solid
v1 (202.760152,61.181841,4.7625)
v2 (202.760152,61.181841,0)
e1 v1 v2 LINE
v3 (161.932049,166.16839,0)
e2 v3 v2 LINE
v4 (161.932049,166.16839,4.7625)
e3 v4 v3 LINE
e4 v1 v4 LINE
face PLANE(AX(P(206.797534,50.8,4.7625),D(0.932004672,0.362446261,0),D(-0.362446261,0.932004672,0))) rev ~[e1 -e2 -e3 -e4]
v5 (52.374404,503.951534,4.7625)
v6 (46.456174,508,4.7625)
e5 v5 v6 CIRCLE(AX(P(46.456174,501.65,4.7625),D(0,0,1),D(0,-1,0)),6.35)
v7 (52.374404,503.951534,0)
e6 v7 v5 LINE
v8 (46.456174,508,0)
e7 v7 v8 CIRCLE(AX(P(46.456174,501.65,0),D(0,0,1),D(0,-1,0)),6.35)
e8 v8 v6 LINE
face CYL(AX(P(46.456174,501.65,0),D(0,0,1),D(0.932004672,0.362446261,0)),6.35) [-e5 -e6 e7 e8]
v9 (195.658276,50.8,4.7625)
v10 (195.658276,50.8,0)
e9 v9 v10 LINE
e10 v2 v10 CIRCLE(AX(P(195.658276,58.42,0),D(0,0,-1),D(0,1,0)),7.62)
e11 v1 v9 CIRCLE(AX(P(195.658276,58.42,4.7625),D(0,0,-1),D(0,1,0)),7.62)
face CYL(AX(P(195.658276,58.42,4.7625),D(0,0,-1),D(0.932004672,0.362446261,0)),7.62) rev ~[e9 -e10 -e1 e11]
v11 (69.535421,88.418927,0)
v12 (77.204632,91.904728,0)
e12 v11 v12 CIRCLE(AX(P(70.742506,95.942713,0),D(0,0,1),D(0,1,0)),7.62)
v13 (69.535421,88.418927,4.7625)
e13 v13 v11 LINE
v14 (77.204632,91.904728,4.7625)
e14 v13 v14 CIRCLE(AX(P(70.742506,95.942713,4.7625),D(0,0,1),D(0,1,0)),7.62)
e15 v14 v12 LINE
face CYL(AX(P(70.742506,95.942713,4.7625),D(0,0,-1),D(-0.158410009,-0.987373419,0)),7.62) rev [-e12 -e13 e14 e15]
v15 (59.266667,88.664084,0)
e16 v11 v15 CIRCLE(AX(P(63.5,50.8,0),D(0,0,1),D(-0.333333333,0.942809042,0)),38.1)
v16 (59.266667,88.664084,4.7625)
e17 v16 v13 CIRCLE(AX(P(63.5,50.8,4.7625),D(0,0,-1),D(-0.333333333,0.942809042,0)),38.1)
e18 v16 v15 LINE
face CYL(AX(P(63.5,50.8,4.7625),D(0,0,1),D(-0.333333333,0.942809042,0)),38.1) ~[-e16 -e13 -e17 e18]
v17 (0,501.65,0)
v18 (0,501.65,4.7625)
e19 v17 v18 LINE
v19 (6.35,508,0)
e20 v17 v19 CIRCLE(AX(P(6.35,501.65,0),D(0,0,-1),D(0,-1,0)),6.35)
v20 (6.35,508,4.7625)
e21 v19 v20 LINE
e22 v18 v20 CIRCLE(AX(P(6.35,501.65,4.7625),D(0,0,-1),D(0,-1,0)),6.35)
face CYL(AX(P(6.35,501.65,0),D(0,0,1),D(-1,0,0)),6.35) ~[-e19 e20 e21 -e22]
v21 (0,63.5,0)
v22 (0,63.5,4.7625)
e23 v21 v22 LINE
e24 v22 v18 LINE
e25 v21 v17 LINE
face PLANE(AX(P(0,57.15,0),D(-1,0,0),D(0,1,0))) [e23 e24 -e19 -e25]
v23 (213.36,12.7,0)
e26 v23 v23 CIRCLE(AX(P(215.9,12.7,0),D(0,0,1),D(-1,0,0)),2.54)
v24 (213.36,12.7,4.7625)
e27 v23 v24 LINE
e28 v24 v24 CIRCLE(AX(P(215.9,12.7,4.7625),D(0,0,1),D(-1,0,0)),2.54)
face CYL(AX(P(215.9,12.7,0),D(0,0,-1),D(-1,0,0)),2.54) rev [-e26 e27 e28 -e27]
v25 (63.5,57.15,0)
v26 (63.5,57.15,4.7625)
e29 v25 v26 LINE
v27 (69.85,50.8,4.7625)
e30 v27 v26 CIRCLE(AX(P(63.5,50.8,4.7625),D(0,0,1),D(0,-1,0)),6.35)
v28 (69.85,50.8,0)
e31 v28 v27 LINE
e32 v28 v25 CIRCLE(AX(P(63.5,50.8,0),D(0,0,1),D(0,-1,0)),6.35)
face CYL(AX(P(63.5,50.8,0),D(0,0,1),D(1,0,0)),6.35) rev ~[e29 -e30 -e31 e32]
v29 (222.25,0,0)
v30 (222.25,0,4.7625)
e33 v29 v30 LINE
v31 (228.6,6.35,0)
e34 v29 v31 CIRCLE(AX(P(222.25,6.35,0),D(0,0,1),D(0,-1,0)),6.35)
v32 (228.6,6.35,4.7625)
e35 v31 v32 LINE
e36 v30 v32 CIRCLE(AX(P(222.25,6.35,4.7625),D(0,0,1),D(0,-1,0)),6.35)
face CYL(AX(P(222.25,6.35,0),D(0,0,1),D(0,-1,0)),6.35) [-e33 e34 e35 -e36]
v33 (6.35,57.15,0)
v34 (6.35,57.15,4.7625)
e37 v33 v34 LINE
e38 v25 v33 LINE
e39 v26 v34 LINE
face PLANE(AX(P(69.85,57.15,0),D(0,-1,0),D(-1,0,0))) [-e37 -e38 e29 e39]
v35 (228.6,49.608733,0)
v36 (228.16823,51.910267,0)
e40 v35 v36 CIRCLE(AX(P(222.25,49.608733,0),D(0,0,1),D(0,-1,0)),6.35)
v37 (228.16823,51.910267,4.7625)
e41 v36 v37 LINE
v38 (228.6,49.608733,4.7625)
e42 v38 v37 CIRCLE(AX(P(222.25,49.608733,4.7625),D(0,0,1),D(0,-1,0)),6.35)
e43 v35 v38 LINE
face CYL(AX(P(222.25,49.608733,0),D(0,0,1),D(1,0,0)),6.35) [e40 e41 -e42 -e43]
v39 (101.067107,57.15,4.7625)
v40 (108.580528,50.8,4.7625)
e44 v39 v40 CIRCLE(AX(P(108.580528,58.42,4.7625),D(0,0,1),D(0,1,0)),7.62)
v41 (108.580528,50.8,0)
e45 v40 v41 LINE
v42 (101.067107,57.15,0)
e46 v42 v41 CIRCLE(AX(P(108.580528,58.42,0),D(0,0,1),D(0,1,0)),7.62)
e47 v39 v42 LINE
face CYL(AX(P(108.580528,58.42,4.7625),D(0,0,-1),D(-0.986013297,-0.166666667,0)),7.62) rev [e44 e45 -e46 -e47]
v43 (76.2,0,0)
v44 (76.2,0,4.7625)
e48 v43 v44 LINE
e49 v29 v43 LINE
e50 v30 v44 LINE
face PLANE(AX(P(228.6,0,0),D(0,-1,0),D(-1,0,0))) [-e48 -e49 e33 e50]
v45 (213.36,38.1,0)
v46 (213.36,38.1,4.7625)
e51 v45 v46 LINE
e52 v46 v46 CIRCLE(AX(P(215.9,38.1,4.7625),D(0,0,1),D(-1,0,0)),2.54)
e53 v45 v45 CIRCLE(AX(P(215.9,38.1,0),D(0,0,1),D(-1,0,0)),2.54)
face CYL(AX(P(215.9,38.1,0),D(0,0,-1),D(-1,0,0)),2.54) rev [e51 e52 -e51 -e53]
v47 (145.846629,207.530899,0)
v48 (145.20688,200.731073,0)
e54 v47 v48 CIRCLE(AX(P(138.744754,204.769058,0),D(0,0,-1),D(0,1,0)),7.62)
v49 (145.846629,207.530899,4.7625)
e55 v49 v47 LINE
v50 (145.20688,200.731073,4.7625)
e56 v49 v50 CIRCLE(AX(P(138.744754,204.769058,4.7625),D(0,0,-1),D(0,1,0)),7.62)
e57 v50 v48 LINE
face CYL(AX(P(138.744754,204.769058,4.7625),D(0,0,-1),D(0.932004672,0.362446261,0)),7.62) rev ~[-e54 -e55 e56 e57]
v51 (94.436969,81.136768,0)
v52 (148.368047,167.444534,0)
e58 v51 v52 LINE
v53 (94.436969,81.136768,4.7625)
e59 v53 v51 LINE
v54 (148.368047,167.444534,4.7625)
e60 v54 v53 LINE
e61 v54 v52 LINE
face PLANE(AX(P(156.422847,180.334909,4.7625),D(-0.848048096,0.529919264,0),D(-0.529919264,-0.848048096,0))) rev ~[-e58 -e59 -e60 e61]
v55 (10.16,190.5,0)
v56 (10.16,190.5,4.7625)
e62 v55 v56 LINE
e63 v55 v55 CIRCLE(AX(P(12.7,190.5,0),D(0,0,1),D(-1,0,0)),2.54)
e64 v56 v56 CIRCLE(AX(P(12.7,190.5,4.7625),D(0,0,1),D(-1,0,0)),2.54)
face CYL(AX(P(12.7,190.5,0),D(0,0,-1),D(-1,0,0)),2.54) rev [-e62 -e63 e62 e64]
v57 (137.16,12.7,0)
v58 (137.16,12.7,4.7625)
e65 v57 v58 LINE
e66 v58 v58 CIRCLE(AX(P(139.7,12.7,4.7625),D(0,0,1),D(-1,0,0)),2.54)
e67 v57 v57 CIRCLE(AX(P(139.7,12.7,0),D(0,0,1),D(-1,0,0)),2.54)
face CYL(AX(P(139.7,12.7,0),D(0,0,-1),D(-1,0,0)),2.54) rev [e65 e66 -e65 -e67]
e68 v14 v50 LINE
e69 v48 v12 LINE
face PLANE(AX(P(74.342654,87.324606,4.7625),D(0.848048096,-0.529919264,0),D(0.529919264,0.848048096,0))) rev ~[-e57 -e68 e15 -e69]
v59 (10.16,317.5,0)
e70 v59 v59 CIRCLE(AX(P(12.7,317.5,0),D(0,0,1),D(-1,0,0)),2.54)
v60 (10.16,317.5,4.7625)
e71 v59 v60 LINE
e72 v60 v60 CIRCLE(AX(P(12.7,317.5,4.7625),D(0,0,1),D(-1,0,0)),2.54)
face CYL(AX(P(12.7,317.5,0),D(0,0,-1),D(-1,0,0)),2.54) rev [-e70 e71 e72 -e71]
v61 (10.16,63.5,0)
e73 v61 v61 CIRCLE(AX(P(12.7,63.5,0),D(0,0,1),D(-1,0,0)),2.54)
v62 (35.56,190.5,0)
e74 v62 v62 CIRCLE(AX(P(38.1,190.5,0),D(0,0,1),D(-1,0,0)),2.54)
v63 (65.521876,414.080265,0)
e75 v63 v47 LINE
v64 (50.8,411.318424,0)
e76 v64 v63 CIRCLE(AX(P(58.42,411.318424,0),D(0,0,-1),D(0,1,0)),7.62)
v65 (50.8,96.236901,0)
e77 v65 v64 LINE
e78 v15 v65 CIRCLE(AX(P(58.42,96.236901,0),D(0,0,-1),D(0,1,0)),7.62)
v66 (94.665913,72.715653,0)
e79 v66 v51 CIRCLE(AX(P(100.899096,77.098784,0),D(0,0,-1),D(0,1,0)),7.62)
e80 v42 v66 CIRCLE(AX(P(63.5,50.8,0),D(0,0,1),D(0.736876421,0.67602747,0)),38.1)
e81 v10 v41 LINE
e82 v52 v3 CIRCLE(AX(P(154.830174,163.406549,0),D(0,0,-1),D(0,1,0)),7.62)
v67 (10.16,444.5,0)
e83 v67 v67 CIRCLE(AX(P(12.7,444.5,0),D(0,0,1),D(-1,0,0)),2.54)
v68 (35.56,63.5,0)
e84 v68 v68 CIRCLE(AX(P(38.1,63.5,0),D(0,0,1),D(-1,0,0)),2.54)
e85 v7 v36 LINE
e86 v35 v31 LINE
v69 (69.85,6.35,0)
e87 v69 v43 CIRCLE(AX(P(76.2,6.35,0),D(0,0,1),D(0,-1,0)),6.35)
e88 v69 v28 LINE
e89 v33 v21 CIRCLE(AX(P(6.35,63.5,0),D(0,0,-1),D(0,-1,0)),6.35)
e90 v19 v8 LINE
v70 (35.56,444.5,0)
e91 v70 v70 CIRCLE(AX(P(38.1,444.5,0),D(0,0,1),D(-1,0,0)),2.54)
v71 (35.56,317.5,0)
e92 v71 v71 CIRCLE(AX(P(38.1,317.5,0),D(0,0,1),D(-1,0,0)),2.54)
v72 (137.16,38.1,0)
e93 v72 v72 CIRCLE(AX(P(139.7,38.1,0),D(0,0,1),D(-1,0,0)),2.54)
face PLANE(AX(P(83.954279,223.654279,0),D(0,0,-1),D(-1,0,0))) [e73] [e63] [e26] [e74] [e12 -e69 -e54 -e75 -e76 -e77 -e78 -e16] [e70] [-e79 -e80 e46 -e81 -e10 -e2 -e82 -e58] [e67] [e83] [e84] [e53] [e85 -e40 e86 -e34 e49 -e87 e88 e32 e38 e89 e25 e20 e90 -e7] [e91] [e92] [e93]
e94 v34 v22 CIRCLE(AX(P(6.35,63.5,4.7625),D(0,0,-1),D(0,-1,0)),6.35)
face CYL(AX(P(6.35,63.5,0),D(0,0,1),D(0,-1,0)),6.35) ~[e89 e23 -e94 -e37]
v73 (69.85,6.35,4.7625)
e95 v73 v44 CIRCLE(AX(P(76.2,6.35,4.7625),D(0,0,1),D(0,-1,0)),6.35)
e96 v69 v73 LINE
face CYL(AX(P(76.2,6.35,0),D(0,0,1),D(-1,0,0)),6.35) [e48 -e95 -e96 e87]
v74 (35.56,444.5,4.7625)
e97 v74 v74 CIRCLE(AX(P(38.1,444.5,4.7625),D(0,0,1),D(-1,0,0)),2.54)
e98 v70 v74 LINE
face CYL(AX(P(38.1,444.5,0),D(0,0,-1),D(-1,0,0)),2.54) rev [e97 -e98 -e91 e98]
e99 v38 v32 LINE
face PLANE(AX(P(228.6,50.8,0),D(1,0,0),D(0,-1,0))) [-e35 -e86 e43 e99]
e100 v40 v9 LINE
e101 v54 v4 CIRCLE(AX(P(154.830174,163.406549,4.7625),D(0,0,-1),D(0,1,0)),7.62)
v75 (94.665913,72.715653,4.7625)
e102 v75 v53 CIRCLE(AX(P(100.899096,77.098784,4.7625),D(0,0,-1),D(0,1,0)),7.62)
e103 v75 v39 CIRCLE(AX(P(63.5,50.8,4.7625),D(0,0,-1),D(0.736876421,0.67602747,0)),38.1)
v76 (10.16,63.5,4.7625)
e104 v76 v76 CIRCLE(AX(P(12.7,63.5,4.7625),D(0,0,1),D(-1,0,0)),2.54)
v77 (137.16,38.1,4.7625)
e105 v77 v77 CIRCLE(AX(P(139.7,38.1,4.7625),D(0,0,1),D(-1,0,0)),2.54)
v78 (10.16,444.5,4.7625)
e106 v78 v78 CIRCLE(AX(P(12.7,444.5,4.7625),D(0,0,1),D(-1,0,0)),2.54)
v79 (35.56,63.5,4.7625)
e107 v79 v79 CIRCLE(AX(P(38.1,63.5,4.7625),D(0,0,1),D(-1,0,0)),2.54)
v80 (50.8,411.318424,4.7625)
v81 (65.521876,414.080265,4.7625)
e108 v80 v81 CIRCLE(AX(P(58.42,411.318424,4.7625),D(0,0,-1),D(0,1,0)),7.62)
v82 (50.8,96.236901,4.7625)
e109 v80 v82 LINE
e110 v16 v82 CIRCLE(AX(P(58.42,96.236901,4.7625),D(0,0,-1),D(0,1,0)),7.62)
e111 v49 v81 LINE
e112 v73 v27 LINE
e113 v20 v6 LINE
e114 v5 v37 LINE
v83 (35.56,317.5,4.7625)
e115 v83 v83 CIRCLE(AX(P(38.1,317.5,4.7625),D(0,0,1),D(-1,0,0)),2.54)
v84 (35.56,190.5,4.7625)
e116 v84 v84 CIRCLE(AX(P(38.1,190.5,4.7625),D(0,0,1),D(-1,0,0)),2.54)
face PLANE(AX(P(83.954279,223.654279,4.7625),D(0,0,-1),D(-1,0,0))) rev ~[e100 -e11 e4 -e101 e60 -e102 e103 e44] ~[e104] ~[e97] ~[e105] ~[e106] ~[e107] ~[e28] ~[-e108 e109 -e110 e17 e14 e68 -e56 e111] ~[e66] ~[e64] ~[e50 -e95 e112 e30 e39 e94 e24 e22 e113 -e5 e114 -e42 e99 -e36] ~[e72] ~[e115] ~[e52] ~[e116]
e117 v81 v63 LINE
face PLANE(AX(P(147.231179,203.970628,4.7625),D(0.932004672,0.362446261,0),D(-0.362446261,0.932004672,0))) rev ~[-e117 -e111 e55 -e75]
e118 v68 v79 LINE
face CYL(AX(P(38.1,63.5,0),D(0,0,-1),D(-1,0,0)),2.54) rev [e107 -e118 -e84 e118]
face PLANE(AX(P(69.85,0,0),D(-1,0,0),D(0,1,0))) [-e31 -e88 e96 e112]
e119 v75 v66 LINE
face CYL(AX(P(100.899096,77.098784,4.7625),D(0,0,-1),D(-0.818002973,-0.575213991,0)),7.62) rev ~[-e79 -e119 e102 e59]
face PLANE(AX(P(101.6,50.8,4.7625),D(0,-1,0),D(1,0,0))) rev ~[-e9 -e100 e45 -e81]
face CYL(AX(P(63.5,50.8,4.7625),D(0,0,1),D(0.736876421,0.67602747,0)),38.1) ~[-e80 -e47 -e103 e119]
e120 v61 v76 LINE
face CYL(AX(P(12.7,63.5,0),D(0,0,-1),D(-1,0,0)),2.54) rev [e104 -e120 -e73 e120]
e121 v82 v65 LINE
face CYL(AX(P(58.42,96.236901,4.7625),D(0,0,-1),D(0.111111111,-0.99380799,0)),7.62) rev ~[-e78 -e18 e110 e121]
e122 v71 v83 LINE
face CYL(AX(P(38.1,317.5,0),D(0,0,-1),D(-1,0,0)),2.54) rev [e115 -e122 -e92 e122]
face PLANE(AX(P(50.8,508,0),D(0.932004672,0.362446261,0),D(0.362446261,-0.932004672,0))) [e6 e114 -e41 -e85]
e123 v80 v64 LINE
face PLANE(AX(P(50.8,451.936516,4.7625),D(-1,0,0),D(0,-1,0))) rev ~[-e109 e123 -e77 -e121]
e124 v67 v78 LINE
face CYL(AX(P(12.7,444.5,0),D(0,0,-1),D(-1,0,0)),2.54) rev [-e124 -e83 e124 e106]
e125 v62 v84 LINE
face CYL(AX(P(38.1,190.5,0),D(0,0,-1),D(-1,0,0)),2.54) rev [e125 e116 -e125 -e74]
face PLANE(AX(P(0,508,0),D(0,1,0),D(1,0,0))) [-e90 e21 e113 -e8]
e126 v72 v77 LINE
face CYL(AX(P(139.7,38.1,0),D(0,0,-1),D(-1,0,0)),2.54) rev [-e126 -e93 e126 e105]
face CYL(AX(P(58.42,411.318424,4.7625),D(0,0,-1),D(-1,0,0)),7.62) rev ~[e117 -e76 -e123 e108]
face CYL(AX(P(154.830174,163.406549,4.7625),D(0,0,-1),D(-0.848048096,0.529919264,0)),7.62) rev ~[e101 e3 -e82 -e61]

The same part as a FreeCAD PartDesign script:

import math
import FreeCAD as App
import Part
import Sketcher

V = App.Vector
Q = App.Units.Quantity


def edges_at(feature, points):
    """Names of the edges that pass closest to the given points."""
    edges = feature.Shape.Edges
    near = lambda p: min(range(len(edges)), key=lambda i: edges[i].distToShape(Part.Vertex(*p))[0])
    return sorted({f"Edge{near(p) + 1}" for p in points})

doc = App.newDocument("Part")
body = doc.addObject("PartDesign::Body", "Body")

# Sketch on XY plane
sketch1 = body.newObject("Sketcher::SketchObject", "Sketch")
sketch1.AttachmentSupport = (doc.getObject("XY_Plane"), [""])
sketch1.MapMode = "FlatFace"
sketch1.addGeometry(Part.LineSegment(V(69.8, 57.1, 0), V(69.8, 0, 0)), False)
sketch1.addGeometry(Part.LineSegment(V(69.8, 0, 0), V(228.6, 0, 0)), False)
sketch1.addGeometry(Part.LineSegment(V(228.6, 0, 0), V(228.6, 50.8, 0)), False)
sketch1.addGeometry(Part.LineSegment(V(228.6, 50.8, 0), V(50.8, 508, 0)), False)
sketch1.addGeometry(Part.LineSegment(V(50.8, 508, 0), V(0, 508, 0)), False)
sketch1.addGeometry(Part.LineSegment(V(0, 508, 0), V(0, 57.1, 0)), False)
sketch1.addGeometry(Part.LineSegment(V(0, 57.1, 0), V(69.8, 57.1, 0)), False)
sketch1.addGeometry(Part.Circle(V(215.9, 12.7, 0), V(0, 0, 1), 2.5), False)
sketch1.addGeometry(Part.Circle(V(215.9, 38.1, 0), V(0, 0, 1), 2.5), False)
sketch1.addGeometry(Part.Circle(V(139.7, 12.7, 0), V(0, 0, 1), 2.5), False)
sketch1.addGeometry(Part.Circle(V(139.7, 38.1, 0), V(0, 0, 1), 2.5), False)
sketch1.addGeometry(Part.Circle(V(38.1, 63.5, 0), V(0, 0, 1), 2.5), False)
sketch1.addGeometry(Part.Circle(V(12.7, 63.5, 0), V(0, 0, 1), 2.5), False)
sketch1.addGeometry(Part.Circle(V(38.1, 190.5, 0), V(0, 0, 1), 2.5), False)
sketch1.addGeometry(Part.Circle(V(12.7, 190.5, 0), V(0, 0, 1), 2.5), False)
sketch1.addGeometry(Part.Circle(V(38.1, 317.5, 0), V(0, 0, 1), 2.5), False)
sketch1.addGeometry(Part.Circle(V(12.7, 317.5, 0), V(0, 0, 1), 2.5), False)
sketch1.addGeometry(Part.Circle(V(38.1, 444.5, 0), V(0, 0, 1), 2.5), False)
sketch1.addGeometry(Part.Circle(V(12.7, 444.5, 0), V(0, 0, 1), 2.5), False)
sketch1.addConstraint(Sketcher.Constraint("Coincident", 0, 2, 1, 1))
sketch1.addConstraint(Sketcher.Constraint("Coincident", 1, 2, 2, 1))
sketch1.addConstraint(Sketcher.Constraint("Coincident", 2, 2, 3, 1))
sketch1.addConstraint(Sketcher.Constraint("Coincident", 3, 2, 4, 1))
sketch1.addConstraint(Sketcher.Constraint("Coincident", 4, 2, 5, 1))
sketch1.addConstraint(Sketcher.Constraint("Coincident", 5, 2, 6, 1))
sketch1.addConstraint(Sketcher.Constraint("Coincident", 6, 2, 0, 1))
sketch1.addConstraint(Sketcher.Constraint("Vertical", 0))
sketch1.addConstraint(Sketcher.Constraint("Horizontal", 1))
sketch1.addConstraint(Sketcher.Constraint("Vertical", 2))
sketch1.addConstraint(Sketcher.Constraint("Horizontal", 4))
sketch1.addConstraint(Sketcher.Constraint("Vertical", 5))
sketch1.addConstraint(Sketcher.Constraint("Horizontal", 6))
sketch1.addConstraint(Sketcher.Constraint("Equal", 7, 8))
sketch1.addConstraint(Sketcher.Constraint("Equal", 8, 9))
sketch1.addConstraint(Sketcher.Constraint("Equal", 9, 10))
sketch1.addConstraint(Sketcher.Constraint("Equal", 10, 11))
sketch1.addConstraint(Sketcher.Constraint("Equal", 11, 12))
sketch1.addConstraint(Sketcher.Constraint("Equal", 12, 13))
sketch1.addConstraint(Sketcher.Constraint("Equal", 13, 14))
sketch1.addConstraint(Sketcher.Constraint("Equal", 14, 15))
sketch1.addConstraint(Sketcher.Constraint("Equal", 15, 16))
sketch1.addConstraint(Sketcher.Constraint("Equal", 16, 17))
sketch1.addConstraint(Sketcher.Constraint("Equal", 17, 18))
sketch1.addConstraint(Sketcher.Constraint("PointOnObject", 0, 2, -1))
sketch1.addConstraint(Sketcher.Constraint("PointOnObject", 4, 2, -2))
sketch1.addConstraint(Sketcher.Constraint("Horizontal", 7, 3, 9, 3))
sketch1.addConstraint(Sketcher.Constraint("Horizontal", 8, 3, 10, 3))
sketch1.addConstraint(Sketcher.Constraint("Horizontal", 11, 3, 12, 3))
sketch1.addConstraint(Sketcher.Constraint("Horizontal", 13, 3, 14, 3))
sketch1.addConstraint(Sketcher.Constraint("Horizontal", 15, 3, 16, 3))
sketch1.addConstraint(Sketcher.Constraint("Horizontal", 17, 3, 18, 3))
sketch1.addConstraint(Sketcher.Constraint("Vertical", 7, 3, 8, 3))
sketch1.addConstraint(Sketcher.Constraint("Vertical", 9, 3, 10, 3))
sketch1.addConstraint(Sketcher.Constraint("Vertical", 11, 3, 13, 3))
sketch1.addConstraint(Sketcher.Constraint("Vertical", 12, 3, 14, 3))
sketch1.addConstraint(Sketcher.Constraint("Vertical", 13, 3, 15, 3))
sketch1.addConstraint(Sketcher.Constraint("Vertical", 14, 3, 16, 3))
sketch1.addConstraint(Sketcher.Constraint("Vertical", 15, 3, 17, 3))
sketch1.addConstraint(Sketcher.Constraint("Vertical", 16, 3, 18, 3))
sketch1.addConstraint(Sketcher.Constraint("Equal", 4, 2))
sketch1.addConstraint(Sketcher.Constraint("Diameter", 7, Q("0.2 in")))
sketch1.addConstraint(Sketcher.Constraint("DistanceX", 4, 2, 4, 1, Q("2 in")))
sketch1.addConstraint(Sketcher.Constraint("DistanceX", -1, 1, 1, 2, Q("9 in")))
sketch1.addConstraint(Sketcher.Constraint("DistanceY", -1, 1, 3, 2, Q("20 in")))
sketch1.addConstraint(Sketcher.Constraint("DistanceY", 7, 3, 8, 3, Q("1 in")))
sketch1.addConstraint(Sketcher.Constraint("DistanceX", 9, 3, 7, 3, Q("3 in")))
sketch1.addConstraint(Sketcher.Constraint("DistanceX", 11, 3, 10, 3, Q("4 in")))
sketch1.addConstraint(Sketcher.Constraint("DistanceY", 10, 3, 11, 3, Q("1 in")))
sketch1.addConstraint(Sketcher.Constraint("DistanceX", 12, 3, 11, 3, Q("1 in")))
sketch1.addConstraint(Sketcher.Constraint("DistanceY", 11, 3, 13, 3, Q("5 in")))
sketch1.addConstraint(Sketcher.Constraint("DistanceY", 13, 3, 15, 3, Q("5 in")))
sketch1.addConstraint(Sketcher.Constraint("DistanceY", 15, 3, 17, 3, Q("5 in")))
sketch1.addConstraint(Sketcher.Constraint("DistanceX", 1, 1, 1, 2, Q("6.25 in")))
sketch1.addConstraint(Sketcher.Constraint("DistanceY", 0, 2, 0, 1, Q("2.25 in")))
sketch1.addConstraint(Sketcher.Constraint("DistanceX", -1, 1, 7, 3, Q("8.5 in")))
sketch1.addConstraint(Sketcher.Constraint("DistanceY", -1, 1, 7, 3, Q("0.5 in")))
pad1 = body.newObject("PartDesign::Pad", "Pad")
pad1.Profile = sketch1
pad1.Length = Q("0.1875 in")
doc.recompute()

fillet = body.newObject("PartDesign::Fillet", "Fillet")
fillet.Base = (pad1, edges_at(pad1, [
    (0, 508, 2.381),
    (50.8, 508, 2.381),
    (228.6, 50.8, 2.381),
    (228.6, 0, 2.381),
    (69.85, 0, 2.381),
    (69.85, 57.15, 2.381),
    (0, 57.15, 2.381),
]))
fillet.Radius = Q("0.25 in")

# Sketch on XY plane
sketch2 = body.newObject("Sketcher::SketchObject", "Sketch001")
sketch2.AttachmentSupport = (doc.getObject("XY_Plane"), [""])
sketch2.MapMode = "FlatFace"
sketch2.AttachmentOffset = App.Placement(V(0, 0, 0.1875 * 25.4), App.Rotation())
sketch2.addGeometry(Part.ArcOfCircle(Part.Circle(V(63, 51, 0), V(0, 0, 1), 38), math.radians(0), math.radians(43)), False)
sketch2.addGeometry(Part.LineSegment(V(102, 51, 0), V(207, 51, 0)), False)
sketch2.addGeometry(Part.LineSegment(V(207, 51, 0), V(156, 180, 0)), False)
sketch2.addGeometry(Part.LineSegment(V(156, 180, 0), V(92, 77, 0)), False)
sketch2.addGeometry(Part.ArcOfCircle(Part.Circle(V(64, 51, 0), V(0, 0, 1), 38), math.radians(73), math.radians(109)), False)
sketch2.addGeometry(Part.LineSegment(V(74, 87, 0), V(147, 204, 0)), False)
sketch2.addGeometry(Part.LineSegment(V(147, 204, 0), V(51, 452, 0)), False)
sketch2.addGeometry(Part.LineSegment(V(51, 452, 0), V(51, 87, 0)), False)
sketch2.addConstraint(Sketcher.Constraint("Coincident", 0, 1, 1, 1))
sketch2.addConstraint(Sketcher.Constraint("Coincident", 1, 2, 2, 1))
sketch2.addConstraint(Sketcher.Constraint("Coincident", 2, 2, 3, 1))
sketch2.addConstraint(Sketcher.Constraint("Coincident", 3, 2, 0, 2))
sketch2.addConstraint(Sketcher.Constraint("Coincident", 4, 1, 5, 1))
sketch2.addConstraint(Sketcher.Constraint("Coincident", 5, 2, 6, 1))
sketch2.addConstraint(Sketcher.Constraint("Coincident", 6, 2, 7, 1))
sketch2.addConstraint(Sketcher.Constraint("Coincident", 7, 2, 4, 2))
sketch2.addConstraint(Sketcher.Constraint("Horizontal", 1))
sketch2.addConstraint(Sketcher.Constraint("Vertical", 7))
sketch2.addConstraint(Sketcher.Constraint("Coincident", 4, 3, 0, 3))
sketch2.addConstraint(Sketcher.Constraint("Equal", 0, 4))
sketch2.addConstraint(Sketcher.Constraint("Parallel", 3, 5))
sketch2.addConstraint(Sketcher.Constraint("Parallel", 2, 6))
sketch2.addConstraint(Sketcher.Constraint("Horizontal", 4, 3, 0, 1))
sketch2.addConstraint(Sketcher.Constraint("Radius", 0, Q("1.5 in")))
sketch2.addConstraint(Sketcher.Constraint("DistanceY", -1, 1, 0, 3, Q("2 in")))
sketch2.addConstraint(Sketcher.Constraint("DistanceX", -1, 1, 0, 1, Q("4 in")))
sketch2.addConstraint(Sketcher.Constraint("DistanceX", -1, 1, 6, 2, Q("2 in")))
sketch2.addConstraint(Sketcher.Constraint("Angle", 3, Q("-122 deg")))
sketch2.addConstraint(Sketcher.Constraint("DistanceY", 7, 2, 7, 1, 365.215492))
sketch2.addConstraint(Sketcher.Constraint("Distance", 5, 137.54647))
sketch2.addConstraint(Sketcher.Constraint("DistanceX", 1, 1, 1, 2, 105.197534))
sketch2.addConstraint(Sketcher.Constraint("DistanceY", -1, 1, 2, 2, 180.334909))
sketch2.addConstraint(Sketcher.Constraint("DistanceX", -1, 1, 3, 2, 91.574992))
pocket1 = body.newObject("PartDesign::Pocket", "Pocket")
pocket1.Profile = sketch2
pocket1.Type = "ThroughAll"
doc.recompute()

fillet2 = body.newObject("PartDesign::Fillet", "Fillet001")
fillet2.Base = (pocket1, edges_at(pocket1, [
    (50.8, 86.721, 2.381),
    (50.8, 451.937, 2.381),
    (147.231, 203.971, 2.381),
    (74.343, 87.325, 2.381),
    (91.575, 76.557, 2.381),
    (156.423, 180.335, 2.381),
    (206.798, 50.8, 2.381),
    (101.6, 50.8, 2.381),
]))
fillet2.Radius = Q("0.3 in")

doc.recompute()
